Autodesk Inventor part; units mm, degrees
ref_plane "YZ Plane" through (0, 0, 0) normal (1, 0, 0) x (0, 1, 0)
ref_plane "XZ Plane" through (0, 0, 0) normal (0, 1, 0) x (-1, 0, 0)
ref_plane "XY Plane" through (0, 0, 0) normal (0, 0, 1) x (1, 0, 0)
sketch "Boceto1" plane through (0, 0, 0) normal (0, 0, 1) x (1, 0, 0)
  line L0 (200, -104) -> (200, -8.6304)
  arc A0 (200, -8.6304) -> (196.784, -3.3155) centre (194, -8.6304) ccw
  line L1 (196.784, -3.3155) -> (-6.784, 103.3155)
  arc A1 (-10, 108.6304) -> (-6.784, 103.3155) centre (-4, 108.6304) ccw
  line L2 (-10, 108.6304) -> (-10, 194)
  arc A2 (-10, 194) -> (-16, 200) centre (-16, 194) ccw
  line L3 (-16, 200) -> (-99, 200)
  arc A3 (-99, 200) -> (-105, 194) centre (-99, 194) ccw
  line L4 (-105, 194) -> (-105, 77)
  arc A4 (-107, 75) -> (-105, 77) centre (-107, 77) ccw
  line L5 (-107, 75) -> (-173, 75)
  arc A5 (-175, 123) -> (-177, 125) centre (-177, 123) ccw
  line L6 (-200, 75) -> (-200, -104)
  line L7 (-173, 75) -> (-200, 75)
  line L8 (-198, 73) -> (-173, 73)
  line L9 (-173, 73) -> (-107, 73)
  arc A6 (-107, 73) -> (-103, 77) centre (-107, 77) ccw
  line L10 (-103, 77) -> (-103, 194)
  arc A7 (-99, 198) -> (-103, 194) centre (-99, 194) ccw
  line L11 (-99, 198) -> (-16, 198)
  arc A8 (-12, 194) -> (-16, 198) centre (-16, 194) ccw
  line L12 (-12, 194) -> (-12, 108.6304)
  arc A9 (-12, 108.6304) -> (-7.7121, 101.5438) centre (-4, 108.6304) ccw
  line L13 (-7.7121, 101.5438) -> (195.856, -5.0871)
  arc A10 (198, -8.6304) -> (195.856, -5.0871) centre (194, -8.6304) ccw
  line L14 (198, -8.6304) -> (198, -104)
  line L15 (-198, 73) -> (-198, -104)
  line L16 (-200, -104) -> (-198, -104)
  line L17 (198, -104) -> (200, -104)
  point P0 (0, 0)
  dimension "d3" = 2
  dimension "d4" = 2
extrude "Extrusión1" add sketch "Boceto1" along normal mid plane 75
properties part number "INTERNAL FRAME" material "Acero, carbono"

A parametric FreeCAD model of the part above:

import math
import FreeCAD as App
import Part
import Sketcher
from FreeCAD import Vector

doc = App.newDocument("Part")
body = doc.addObject("PartDesign::Body", "Body")

sketch1 = body.newObject("Sketcher::SketchObject", "Sketch")
sketch1.AttachmentSupport = (doc.getObject("XY_Plane"), [""])
sketch1.MapMode = "FlatFace"
sketch1.addGeometry(Part.LineSegment(Vector(198, -104, 0), Vector(200, -104, 0)), False)
sketch1.addGeometry(Part.LineSegment(Vector(200, -104, 0), Vector(200, -8.6, 0)), False)
sketch1.addGeometry(Part.ArcOfCircle(Part.Circle(Vector(194, -8.6, 0), Vector(0, 0, 1), 6), math.radians(0), math.radians(62)), False)
sketch1.addGeometry(Part.LineSegment(Vector(196.8, -3.3, 0), Vector(-6.8, 103.3, 0)), False)
sketch1.addGeometry(Part.ArcOfCircle(Part.Circle(Vector(-4, 108.6, 0), Vector(0, 0, 1), 6), math.radians(180), math.radians(242)), False)
sketch1.addGeometry(Part.LineSegment(Vector(-10, 108.6, 0), Vector(-10, 194, 0)), False)
sketch1.addGeometry(Part.ArcOfCircle(Part.Circle(Vector(-16, 194, 0), Vector(0, 0, 1), 6), math.radians(0), math.radians(90)), False)
sketch1.addGeometry(Part.LineSegment(Vector(-16, 200, 0), Vector(-99, 200, 0)), False)
sketch1.addGeometry(Part.ArcOfCircle(Part.Circle(Vector(-99, 194, 0), Vector(0, 0, 1), 6), math.radians(90), math.radians(180)), False)
sketch1.addGeometry(Part.LineSegment(Vector(-105, 194, 0), Vector(-105, 77, 0)), False)
sketch1.addGeometry(Part.ArcOfCircle(Part.Circle(Vector(-107, 77, 0), Vector(0, 0, 1), 2), math.radians(-90), math.radians(0)), False)
sketch1.addGeometry(Part.LineSegment(Vector(-107, 75, 0), Vector(-200, 75, 0)), False)
sketch1.addGeometry(Part.LineSegment(Vector(-200, 75, 0), Vector(-200, -104, 0)), False)
sketch1.addGeometry(Part.LineSegment(Vector(-200, -104, 0), Vector(-198, -104, 0)), False)
sketch1.addGeometry(Part.LineSegment(Vector(-198, -104, 0), Vector(-198, 73, 0)), False)
sketch1.addGeometry(Part.LineSegment(Vector(-198, 73, 0), Vector(-107, 73, 0)), False)
sketch1.addGeometry(Part.ArcOfCircle(Part.Circle(Vector(-107, 77, 0), Vector(0, 0, 1), 4), math.radians(-90), math.radians(0)), False)
sketch1.addGeometry(Part.LineSegment(Vector(-103, 77, 0), Vector(-103, 194, 0)), False)
sketch1.addGeometry(Part.ArcOfCircle(Part.Circle(Vector(-99, 194, 0), Vector(0, 0, 1), 4), math.radians(90), math.radians(180)), False)
sketch1.addGeometry(Part.LineSegment(Vector(-99, 198, 0), Vector(-16, 198, 0)), False)
sketch1.addGeometry(Part.ArcOfCircle(Part.Circle(Vector(-16, 194, 0), Vector(0, 0, 1), 4), math.radians(0), math.radians(90)), False)
sketch1.addGeometry(Part.LineSegment(Vector(-12, 194, 0), Vector(-12, 108.6, 0)), False)
sketch1.addGeometry(Part.ArcOfCircle(Part.Circle(Vector(-4, 108.6, 0), Vector(0, 0, 1), 8), math.radians(180), math.radians(242)), False)
sketch1.addGeometry(Part.LineSegment(Vector(-7.7, 101.5, 0), Vector(195.9, -5.1, 0)), False)
sketch1.addGeometry(Part.ArcOfCircle(Part.Circle(Vector(194, -8.6, 0), Vector(0, 0, 1), 4), math.radians(0), math.radians(62)), False)
sketch1.addGeometry(Part.LineSegment(Vector(198, -8.6, 0), Vector(198, -104, 0)), False)
sketch1.addConstraint(Sketcher.Constraint("Coincident", 0, 2, 1, 1))
sketch1.addConstraint(Sketcher.Constraint("Tangent", 1, 2, 2, 1))
sketch1.addConstraint(Sketcher.Constraint("Tangent", 2, 2, 3, 1))
sketch1.addConstraint(Sketcher.Constraint("Tangent", 3, 2, 4, 2))
sketch1.addConstraint(Sketcher.Constraint("Tangent", 4, 1, 5, 1))
sketch1.addConstraint(Sketcher.Constraint("Tangent", 5, 2, 6, 1))
sketch1.addConstraint(Sketcher.Constraint("Tangent", 6, 2, 7, 1))
sketch1.addConstraint(Sketcher.Constraint("Tangent", 7, 2, 8, 1))
sketch1.addConstraint(Sketcher.Constraint("Tangent", 8, 2, 9, 1))
sketch1.addConstraint(Sketcher.Constraint("Tangent", 9, 2, 10, 2))
sketch1.addConstraint(Sketcher.Constraint("Tangent", 10, 1, 11, 1))
sketch1.addConstraint(Sketcher.Constraint("Coincident", 11, 2, 12, 1))
sketch1.addConstraint(Sketcher.Constraint("Coincident", 12, 2, 13, 1))
sketch1.addConstraint(Sketcher.Constraint("Coincident", 13, 2, 14, 1))
sketch1.addConstraint(Sketcher.Constraint("Coincident", 14, 2, 15, 1))
sketch1.addConstraint(Sketcher.Constraint("Tangent", 15, 2, 16, 1))
sketch1.addConstraint(Sketcher.Constraint("Tangent", 16, 2, 17, 1))
sketch1.addConstraint(Sketcher.Constraint("Tangent", 17, 2, 18, 2))
sketch1.addConstraint(Sketcher.Constraint("Tangent", 18, 1, 19, 1))
sketch1.addConstraint(Sketcher.Constraint("Tangent", 19, 2, 20, 2))
sketch1.addConstraint(Sketcher.Constraint("Tangent", 20, 1, 21, 1))
sketch1.addConstraint(Sketcher.Constraint("Tangent", 21, 2, 22, 1))
sketch1.addConstraint(Sketcher.Constraint("Tangent", 22, 2, 23, 1))
sketch1.addConstraint(Sketcher.Constraint("Tangent", 23, 2, 24, 2))
sketch1.addConstraint(Sketcher.Constraint("Tangent", 24, 1, 25, 1))
sketch1.addConstraint(Sketcher.Constraint("Coincident", 25, 2, 0, 1))
sketch1.addConstraint(Sketcher.Constraint("Horizontal", 0))
sketch1.addConstraint(Sketcher.Constraint("Vertical", 1))
sketch1.addConstraint(Sketcher.Constraint("Vertical", 5))
sketch1.addConstraint(Sketcher.Constraint("Horizontal", 7))
sketch1.addConstraint(Sketcher.Constraint("Vertical", 9))
sketch1.addConstraint(Sketcher.Constraint("Horizontal", 11))
sketch1.addConstraint(Sketcher.Constraint("Vertical", 12))
sketch1.addConstraint(Sketcher.Constraint("Horizontal", 13))
sketch1.addConstraint(Sketcher.Constraint("Vertical", 14))
sketch1.addConstraint(Sketcher.Constraint("Horizontal", 15))
sketch1.addConstraint(Sketcher.Constraint("Vertical", 17))
sketch1.addConstraint(Sketcher.Constraint("Horizontal", 19))
sketch1.addConstraint(Sketcher.Constraint("Vertical", 21))
sketch1.addConstraint(Sketcher.Constraint("Vertical", 25))
sketch1.addConstraint(Sketcher.Constraint("Coincident", 16, 3, 10, 3))
sketch1.addConstraint(Sketcher.Constraint("Coincident", 18, 3, 8, 3))
sketch1.addConstraint(Sketcher.Constraint("Coincident", 20, 3, 6, 3))
sketch1.addConstraint(Sketcher.Constraint("Coincident", 22, 3, 4, 3))
sketch1.addConstraint(Sketcher.Constraint("Coincident", 24, 3, 2, 3))
sketch1.addConstraint(Sketcher.Constraint("Equal", 2, 4))
sketch1.addConstraint(Sketcher.Constraint("Equal", 4, 6))
sketch1.addConstraint(Sketcher.Constraint("Equal", 6, 8))
sketch1.addConstraint(Sketcher.Constraint("Equal", 16, 18))
sketch1.addConstraint(Sketcher.Constraint("Equal", 20, 24))
sketch1.addConstraint(Sketcher.Constraint("Symmetric", 0, 2, 12, 2, -2))
sketch1.addConstraint(Sketcher.Constraint("Equal", 0, 13))
sketch1.addConstraint(Sketcher.Constraint("Radius", 10, 2.0))
sketch1.addConstraint(Sketcher.Constraint("DistanceX", 0, 1, 0, 2, 2.0))
sketch1.addConstraint(Sketcher.Constraint("DistanceX", 7, 2, 7, 1, 83.0))
sketch1.addConstraint(Sketcher.Constraint("DistanceX", 11, 2, 11, 1, 93.0))
sketch1.addConstraint(Sketcher.Constraint("DistanceY", 9, 2, 9, 1, 117.0))
sketch1.addConstraint(Sketcher.Constraint("DistanceY", 12, 2, 12, 1, 179.0))
sketch1.addConstraint(Sketcher.Constraint("DistanceX", -1, 1, 2, 3, 194.0))
sketch1.addConstraint(Sketcher.Constraint("DistanceY", -1, 1, 6, 3, 194.0))
sketch1.addConstraint(Sketcher.Constraint("DistanceY", 1, 1, 1, 2, 95.3696))
sketch1.addConstraint(Sketcher.Constraint("DistanceY", 5, 1, 5, 2, 85.3696))
pad1 = body.newObject("PartDesign::Pad", "Pad")
pad1.Profile = sketch1
pad1.Length = 75
pad1.Midplane = True

doc.recompute()
